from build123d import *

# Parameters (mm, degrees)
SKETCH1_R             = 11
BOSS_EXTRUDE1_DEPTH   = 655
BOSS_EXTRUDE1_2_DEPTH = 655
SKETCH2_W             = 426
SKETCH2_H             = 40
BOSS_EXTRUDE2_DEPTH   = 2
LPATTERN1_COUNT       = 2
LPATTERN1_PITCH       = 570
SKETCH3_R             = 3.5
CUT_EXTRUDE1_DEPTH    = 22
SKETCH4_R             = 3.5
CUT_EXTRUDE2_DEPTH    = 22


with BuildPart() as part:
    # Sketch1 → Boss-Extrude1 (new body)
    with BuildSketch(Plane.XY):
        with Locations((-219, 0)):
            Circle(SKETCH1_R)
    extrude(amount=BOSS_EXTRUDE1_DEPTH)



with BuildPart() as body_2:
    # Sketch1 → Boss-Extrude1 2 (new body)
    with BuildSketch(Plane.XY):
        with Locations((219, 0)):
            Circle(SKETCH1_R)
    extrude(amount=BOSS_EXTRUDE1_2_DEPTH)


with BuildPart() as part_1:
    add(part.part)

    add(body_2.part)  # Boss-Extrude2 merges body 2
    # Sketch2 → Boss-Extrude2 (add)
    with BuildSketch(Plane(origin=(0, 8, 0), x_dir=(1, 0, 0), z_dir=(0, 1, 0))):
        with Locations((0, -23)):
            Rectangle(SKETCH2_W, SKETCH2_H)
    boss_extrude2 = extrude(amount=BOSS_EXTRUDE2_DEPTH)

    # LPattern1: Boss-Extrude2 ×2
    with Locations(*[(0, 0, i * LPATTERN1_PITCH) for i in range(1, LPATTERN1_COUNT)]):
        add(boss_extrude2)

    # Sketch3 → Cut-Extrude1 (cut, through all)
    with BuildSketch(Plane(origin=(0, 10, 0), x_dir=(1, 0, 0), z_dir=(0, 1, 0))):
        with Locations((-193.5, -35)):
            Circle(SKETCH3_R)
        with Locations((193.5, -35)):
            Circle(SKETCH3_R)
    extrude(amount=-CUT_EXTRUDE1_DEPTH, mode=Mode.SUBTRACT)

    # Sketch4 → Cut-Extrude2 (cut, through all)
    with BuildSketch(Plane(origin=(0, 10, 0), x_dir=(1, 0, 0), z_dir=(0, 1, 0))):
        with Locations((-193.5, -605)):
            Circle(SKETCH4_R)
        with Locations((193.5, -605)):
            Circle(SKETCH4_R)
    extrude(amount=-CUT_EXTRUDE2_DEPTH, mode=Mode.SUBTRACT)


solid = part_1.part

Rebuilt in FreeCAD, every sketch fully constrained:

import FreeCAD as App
import Part
import Sketcher
from FreeCAD import Vector


def add_polygon(sketch, points):
    """Adds a closed chain of lines whose ends are joined by coincident constraints."""
    first, n = sketch.GeometryCount, len(points)
    for a, b in zip(points, points[1:] + points[:1]):
        sketch.addGeometry(Part.LineSegment(App.Vector(*a, 0), App.Vector(*b, 0)), False)
    for i in range(n):
        sketch.addConstraint(Sketcher.Constraint("Coincident", first + i, 2, first + (i + 1) % n, 1))

doc = App.newDocument("Part")
params = doc.addObject("Spreadsheet::Sheet", "Params")
for row, (alias, value) in enumerate([
    ("sketch1_diameter", "22 mm"),
    ("pad1_length", "655 mm"),
    ("sketch2_diameter", "22 mm"),
    ("pad2_length", "655 mm"),
    ("sketch3_width", "426 mm"),
    ("sketch3_height", "40 mm"),
    ("pad3_length", "2 mm"),
    ("linearpattern_pitch", "570 mm"),
    ("sketch4_diameter", "7 mm"),
    ("sketch5_diameter", "7 mm"),
], start=1):
    params.set(f"A{row}", alias)
    params.set(f"B{row}", "=" + value)
    params.setAlias(f"B{row}", alias)

body = doc.addObject("PartDesign::Body", "Body")

# Sketch on XY plane
sketch1 = body.newObject("Sketcher::SketchObject", "Sketch")
sketch1.AttachmentSupport = (doc.getObject("XY_Plane"), [""])
sketch1.MapMode = "FlatFace"
sketch1.addGeometry(Part.Circle(Vector(-219, 0, 0), Vector(0, 0, 1), 11), False)
sketch1.addConstraint(Sketcher.Constraint("PointOnObject", 0, 3, -1))
sketch1.addConstraint(Sketcher.Constraint("Diameter", 0, 22.0))
sketch1.addConstraint(Sketcher.Constraint("DistanceX", 0, 3, -1, 1, 219.0))
sketch1.setExpression("Constraints[1]", "Params.sketch1_diameter")
pad1 = body.newObject("PartDesign::Pad", "Pad")
pad1.Profile = sketch1
pad1.setExpression("Length", "Params.pad1_length")
body2 = doc.addObject("PartDesign::Body", "Body001")

# Sketch on XY plane
sketch2 = body2.newObject("Sketcher::SketchObject", "Sketch001")
sketch2.AttachmentSupport = (doc.getObject("XY_Plane001"), [""])
sketch2.MapMode = "FlatFace"
sketch2.addGeometry(Part.Circle(Vector(219, 0, 0), Vector(0, 0, 1), 11), False)
sketch2.addConstraint(Sketcher.Constraint("PointOnObject", 0, 3, -1))
sketch2.addConstraint(Sketcher.Constraint("Diameter", 0, 22.0))
sketch2.addConstraint(Sketcher.Constraint("DistanceX", -1, 1, 0, 3, 219.0))
sketch2.setExpression("Constraints[1]", "Params.sketch2_diameter")
pad2 = body2.newObject("PartDesign::Pad", "Pad001")
pad2.Profile = sketch2
pad2.setExpression("Length", "Params.pad2_length")
body.AllowCompound = True
doc.recompute()

boolean = body.newObject("PartDesign::Boolean", "Boolean")
boolean.Type = "Fuse"
boolean.addObjects([body2])

# Sketch on XZ plane
sketch3 = body.newObject("Sketcher::SketchObject", "Sketch002")
sketch3.AttachmentSupport = (doc.getObject("XZ_Plane"), [""])
sketch3.MapMode = "FlatFace"
sketch3.AttachmentOffset = App.Placement(Vector(0, 0, -8), App.Rotation())
add_polygon(sketch3, [(-213, 3), (-213, 43), (213, 43), (213, 3)])  # lines 0-3
sketch3.addConstraint(Sketcher.Constraint("Vertical", 0))
sketch3.addConstraint(Sketcher.Constraint("Horizontal", 1))
sketch3.addConstraint(Sketcher.Constraint("Vertical", 2))
sketch3.addConstraint(Sketcher.Constraint("Horizontal", 3))
sketch3.addConstraint(Sketcher.Constraint("DistanceX", 1, 1, 1, 2, 426.0))
sketch3.addConstraint(Sketcher.Constraint("DistanceY", 0, 1, 0, 2, 40.0))
sketch3.addConstraint(Sketcher.Constraint("DistanceX", 0, 2, -1, 1, 213.0))
sketch3.addConstraint(Sketcher.Constraint("DistanceY", -1, 1, 0, 2, 43.0))
sketch3.setExpression("Constraints[8]", "Params.sketch3_width")
sketch3.setExpression("Constraints[9]", "Params.sketch3_height")
pad3 = body.newObject("PartDesign::Pad", "Pad002")
pad3.Profile = sketch3
pad3.setExpression("Length", "Params.pad3_length")
pad3.Reversed = True
doc.recompute()

linearpattern = body.newObject("PartDesign::LinearPattern", "LinearPattern")
linearpattern.Originals = [pad3]
linearpattern.Direction = (doc.getObject("Z_Axis"), [""])
linearpattern.Mode = "offset"
linearpattern.setExpression("Offset", "Params.linearpattern_pitch")
linearpattern.Occurrences = 2
body.Tip = linearpattern

# Sketch on XZ plane
sketch4 = body.newObject("Sketcher::SketchObject", "Sketch003")
sketch4.AttachmentSupport = (doc.getObject("XZ_Plane"), [""])
sketch4.MapMode = "FlatFace"
sketch4.AttachmentOffset = App.Placement(Vector(0, 0, -10), App.Rotation())
sketch4.addGeometry(Part.Circle(Vector(-193.5, 35, 0), Vector(0, 0, 1), 3.5), False)
sketch4.addGeometry(Part.Circle(Vector(193.5, 35, 0), Vector(0, 0, 1), 3.5), False)
sketch4.addConstraint(Sketcher.Constraint("Equal", 0, 1))
sketch4.addConstraint(Sketcher.Constraint("Symmetric", 0, 3, 1, 3, -2))
sketch4.addConstraint(Sketcher.Constraint("Diameter", 0, 7.0))
sketch4.addConstraint(Sketcher.Constraint("DistanceY", -1, 1, 0, 3, 35.0))
sketch4.addConstraint(Sketcher.Constraint("DistanceX", 0, 3, 1, 3, 387.0))
sketch4.setExpression("Constraints[2]", "Params.sketch4_diameter")
pocket1 = body.newObject("PartDesign::Pocket", "Pocket")
pocket1.Profile = sketch4
pocket1.Type = "ThroughAll"
pocket1.Reversed = True

# Sketch on XZ plane
sketch5 = body.newObject("Sketcher::SketchObject", "Sketch004")
sketch5.AttachmentSupport = (doc.getObject("XZ_Plane"), [""])
sketch5.MapMode = "FlatFace"
sketch5.AttachmentOffset = App.Placement(Vector(0, 0, -10), App.Rotation())
sketch5.addGeometry(Part.Circle(Vector(-193.5, 605, 0), Vector(0, 0, 1), 3.5), False)
sketch5.addGeometry(Part.Circle(Vector(193.5, 605, 0), Vector(0, 0, 1), 3.5), False)
sketch5.addConstraint(Sketcher.Constraint("Equal", 0, 1))
sketch5.addConstraint(Sketcher.Constraint("Symmetric", 0, 3, 1, 3, -2))
sketch5.addConstraint(Sketcher.Constraint("Diameter", 0, 7.0))
sketch5.addConstraint(Sketcher.Constraint("DistanceY", -1, 1, 0, 3, 605.0))
sketch5.addConstraint(Sketcher.Constraint("DistanceX", 0, 3, 1, 3, 387.0))
sketch5.setExpression("Constraints[2]", "Params.sketch5_diameter")
pocket2 = body.newObject("PartDesign::Pocket", "Pocket001")
pocket2.Profile = sketch5
pocket2.Type = "ThroughAll"
pocket2.Reversed = True

doc.recompute()
